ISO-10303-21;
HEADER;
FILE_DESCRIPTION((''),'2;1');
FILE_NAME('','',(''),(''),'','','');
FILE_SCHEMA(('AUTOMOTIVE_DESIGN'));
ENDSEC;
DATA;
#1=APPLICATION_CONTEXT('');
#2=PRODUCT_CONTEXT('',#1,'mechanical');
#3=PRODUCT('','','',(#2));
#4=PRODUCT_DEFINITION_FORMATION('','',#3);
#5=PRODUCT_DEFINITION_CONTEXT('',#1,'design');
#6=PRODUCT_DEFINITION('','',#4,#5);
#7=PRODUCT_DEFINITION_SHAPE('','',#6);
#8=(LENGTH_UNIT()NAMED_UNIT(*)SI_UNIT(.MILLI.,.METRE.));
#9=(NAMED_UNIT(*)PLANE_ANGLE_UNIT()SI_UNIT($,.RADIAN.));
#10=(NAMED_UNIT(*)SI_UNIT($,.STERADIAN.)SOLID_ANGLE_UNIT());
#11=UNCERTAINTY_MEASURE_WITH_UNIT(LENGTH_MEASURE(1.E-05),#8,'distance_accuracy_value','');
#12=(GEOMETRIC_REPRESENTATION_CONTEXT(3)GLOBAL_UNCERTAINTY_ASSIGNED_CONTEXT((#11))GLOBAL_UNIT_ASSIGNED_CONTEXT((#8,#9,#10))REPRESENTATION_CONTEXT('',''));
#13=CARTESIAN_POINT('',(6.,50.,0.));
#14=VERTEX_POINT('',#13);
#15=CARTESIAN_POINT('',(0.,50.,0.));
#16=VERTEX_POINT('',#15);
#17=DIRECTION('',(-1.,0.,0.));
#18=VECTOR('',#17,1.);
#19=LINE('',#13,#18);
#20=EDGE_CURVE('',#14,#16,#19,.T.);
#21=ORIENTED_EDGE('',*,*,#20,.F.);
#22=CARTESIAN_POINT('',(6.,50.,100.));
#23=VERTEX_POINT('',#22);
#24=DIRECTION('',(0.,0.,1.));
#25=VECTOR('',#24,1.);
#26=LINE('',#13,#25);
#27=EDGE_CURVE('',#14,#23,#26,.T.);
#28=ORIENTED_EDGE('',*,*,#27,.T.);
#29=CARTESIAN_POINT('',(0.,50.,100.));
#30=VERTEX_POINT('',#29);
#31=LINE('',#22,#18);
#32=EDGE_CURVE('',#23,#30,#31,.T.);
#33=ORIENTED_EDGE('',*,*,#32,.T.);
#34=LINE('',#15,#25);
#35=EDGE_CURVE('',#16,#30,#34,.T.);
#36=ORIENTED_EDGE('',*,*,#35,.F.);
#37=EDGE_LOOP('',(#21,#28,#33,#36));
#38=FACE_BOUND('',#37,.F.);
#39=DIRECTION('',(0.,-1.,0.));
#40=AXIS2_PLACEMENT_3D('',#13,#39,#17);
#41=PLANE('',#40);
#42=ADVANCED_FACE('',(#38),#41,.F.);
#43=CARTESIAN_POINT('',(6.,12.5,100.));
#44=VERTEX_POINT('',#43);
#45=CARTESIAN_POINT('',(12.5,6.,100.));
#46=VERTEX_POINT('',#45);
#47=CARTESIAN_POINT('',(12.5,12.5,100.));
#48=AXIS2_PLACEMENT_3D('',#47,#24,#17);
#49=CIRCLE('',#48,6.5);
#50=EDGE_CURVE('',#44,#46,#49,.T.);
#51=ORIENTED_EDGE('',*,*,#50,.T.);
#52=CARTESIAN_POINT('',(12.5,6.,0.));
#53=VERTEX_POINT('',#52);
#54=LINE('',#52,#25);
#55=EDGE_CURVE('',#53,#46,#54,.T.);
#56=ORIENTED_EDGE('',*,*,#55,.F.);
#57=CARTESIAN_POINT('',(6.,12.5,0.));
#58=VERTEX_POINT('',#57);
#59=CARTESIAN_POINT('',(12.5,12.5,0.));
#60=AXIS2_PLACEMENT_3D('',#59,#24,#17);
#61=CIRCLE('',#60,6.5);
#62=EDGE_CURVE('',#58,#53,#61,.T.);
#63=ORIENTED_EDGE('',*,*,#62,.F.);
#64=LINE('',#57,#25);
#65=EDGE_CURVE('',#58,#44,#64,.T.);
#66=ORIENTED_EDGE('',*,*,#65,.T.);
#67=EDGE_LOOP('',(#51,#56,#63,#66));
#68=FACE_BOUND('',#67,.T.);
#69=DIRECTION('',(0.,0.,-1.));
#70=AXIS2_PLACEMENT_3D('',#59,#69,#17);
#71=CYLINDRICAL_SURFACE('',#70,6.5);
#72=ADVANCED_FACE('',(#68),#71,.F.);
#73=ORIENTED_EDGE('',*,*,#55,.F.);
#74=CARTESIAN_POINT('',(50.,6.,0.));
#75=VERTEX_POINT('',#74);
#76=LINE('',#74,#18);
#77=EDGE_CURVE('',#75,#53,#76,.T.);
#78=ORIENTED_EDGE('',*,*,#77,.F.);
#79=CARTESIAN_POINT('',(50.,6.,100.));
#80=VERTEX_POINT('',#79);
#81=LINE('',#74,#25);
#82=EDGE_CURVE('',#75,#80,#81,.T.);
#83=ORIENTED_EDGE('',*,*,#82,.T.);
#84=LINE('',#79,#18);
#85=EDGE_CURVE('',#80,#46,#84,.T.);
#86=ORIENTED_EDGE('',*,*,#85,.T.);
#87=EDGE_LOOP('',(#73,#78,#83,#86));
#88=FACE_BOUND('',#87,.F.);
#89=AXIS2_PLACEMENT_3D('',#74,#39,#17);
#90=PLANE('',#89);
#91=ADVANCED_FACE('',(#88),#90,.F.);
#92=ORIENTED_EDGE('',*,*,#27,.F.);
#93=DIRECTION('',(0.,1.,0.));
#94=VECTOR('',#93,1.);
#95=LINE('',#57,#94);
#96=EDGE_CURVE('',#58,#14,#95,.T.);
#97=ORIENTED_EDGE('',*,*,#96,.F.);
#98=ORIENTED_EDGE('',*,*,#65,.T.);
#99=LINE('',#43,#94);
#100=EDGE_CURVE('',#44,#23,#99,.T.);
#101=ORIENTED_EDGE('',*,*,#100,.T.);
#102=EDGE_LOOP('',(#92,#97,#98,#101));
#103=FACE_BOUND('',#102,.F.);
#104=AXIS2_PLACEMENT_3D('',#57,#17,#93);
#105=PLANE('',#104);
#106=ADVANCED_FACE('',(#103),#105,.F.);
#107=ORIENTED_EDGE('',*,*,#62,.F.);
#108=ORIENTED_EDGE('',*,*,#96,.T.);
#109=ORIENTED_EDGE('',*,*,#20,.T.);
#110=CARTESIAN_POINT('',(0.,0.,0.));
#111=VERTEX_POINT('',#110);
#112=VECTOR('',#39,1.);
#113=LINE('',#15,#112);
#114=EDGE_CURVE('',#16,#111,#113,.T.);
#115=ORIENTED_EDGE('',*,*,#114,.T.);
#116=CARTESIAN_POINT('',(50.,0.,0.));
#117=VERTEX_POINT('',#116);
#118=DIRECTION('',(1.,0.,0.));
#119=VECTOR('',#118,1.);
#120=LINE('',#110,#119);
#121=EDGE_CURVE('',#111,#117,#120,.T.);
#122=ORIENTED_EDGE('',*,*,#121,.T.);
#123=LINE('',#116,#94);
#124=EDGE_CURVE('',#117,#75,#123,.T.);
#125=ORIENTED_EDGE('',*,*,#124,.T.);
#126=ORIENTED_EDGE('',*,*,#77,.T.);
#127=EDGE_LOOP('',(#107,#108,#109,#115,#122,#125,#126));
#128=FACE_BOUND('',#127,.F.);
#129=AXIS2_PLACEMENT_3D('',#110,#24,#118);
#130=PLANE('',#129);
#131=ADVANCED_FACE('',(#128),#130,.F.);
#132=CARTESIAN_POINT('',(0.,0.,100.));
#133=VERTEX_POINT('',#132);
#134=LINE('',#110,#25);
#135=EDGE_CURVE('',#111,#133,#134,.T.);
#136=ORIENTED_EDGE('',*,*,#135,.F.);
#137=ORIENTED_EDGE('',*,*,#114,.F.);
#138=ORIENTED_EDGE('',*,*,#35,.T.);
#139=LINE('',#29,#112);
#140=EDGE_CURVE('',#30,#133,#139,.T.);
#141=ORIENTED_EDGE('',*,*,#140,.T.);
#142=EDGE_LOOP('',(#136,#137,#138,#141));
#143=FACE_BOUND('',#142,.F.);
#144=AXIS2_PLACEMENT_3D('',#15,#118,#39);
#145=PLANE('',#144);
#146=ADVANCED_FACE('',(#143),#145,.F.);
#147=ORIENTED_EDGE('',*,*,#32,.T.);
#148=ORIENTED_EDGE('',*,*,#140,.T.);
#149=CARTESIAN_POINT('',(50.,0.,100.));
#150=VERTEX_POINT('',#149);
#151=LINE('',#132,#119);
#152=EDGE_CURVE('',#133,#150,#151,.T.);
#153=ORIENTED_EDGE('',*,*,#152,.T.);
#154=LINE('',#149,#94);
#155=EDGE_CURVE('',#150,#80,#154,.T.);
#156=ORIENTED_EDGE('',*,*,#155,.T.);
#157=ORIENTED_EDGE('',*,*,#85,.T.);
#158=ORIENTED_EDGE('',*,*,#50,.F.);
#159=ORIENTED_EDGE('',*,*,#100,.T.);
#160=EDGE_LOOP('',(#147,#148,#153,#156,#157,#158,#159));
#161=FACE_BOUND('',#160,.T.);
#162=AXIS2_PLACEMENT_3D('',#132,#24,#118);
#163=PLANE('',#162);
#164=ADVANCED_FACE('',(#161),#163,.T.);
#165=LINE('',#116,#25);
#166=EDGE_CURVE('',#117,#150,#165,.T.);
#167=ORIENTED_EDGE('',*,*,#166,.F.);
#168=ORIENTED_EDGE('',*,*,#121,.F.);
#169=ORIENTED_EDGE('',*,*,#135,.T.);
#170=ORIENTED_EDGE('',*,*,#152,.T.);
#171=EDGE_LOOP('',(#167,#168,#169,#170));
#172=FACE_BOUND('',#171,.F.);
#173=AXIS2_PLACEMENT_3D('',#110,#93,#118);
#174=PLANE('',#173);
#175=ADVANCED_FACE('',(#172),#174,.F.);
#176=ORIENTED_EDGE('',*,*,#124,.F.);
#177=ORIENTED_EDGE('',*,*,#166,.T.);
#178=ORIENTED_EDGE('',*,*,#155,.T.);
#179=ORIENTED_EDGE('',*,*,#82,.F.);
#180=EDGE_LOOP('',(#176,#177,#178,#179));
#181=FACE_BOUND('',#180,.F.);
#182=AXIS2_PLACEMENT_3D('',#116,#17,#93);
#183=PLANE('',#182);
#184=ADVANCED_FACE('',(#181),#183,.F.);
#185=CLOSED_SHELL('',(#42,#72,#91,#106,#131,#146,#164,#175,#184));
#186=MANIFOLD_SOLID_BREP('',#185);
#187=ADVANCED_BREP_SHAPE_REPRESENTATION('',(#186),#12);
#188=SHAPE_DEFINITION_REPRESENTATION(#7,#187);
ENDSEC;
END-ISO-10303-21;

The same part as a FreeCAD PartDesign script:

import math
import FreeCAD as App
import Part
import Sketcher

doc = App.newDocument("Part")
body = doc.addObject("PartDesign::Body", "Body")

sketch1 = doc.addObject("Sketcher::SketchObject", "Sketch")
body.addObject(sketch1)
sketch1.AttachmentSupport = (doc.XY_Plane, [""])
sketch1.MapMode = "FlatFace"
sketch1.addGeometry([
    Part.LineSegment(App.Vector(6, 50, 0), App.Vector(0, 50, 0)),
    Part.LineSegment(App.Vector(0, 50, 0), App.Vector(0, 0, 0)),
    Part.LineSegment(App.Vector(0, 0, 0), App.Vector(50, 0, 0)),
    Part.LineSegment(App.Vector(50, 0, 0), App.Vector(50, 6, 0)),
    Part.LineSegment(App.Vector(50, 6, 0), App.Vector(12, 6, 0)),
    Part.ArcOfCircle(Part.Circle(App.Vector(12, 12, 0), App.Vector(0, 0, 1), 6), math.radians(180), math.radians(270)),
    Part.LineSegment(App.Vector(6, 12, 0), App.Vector(6, 50, 0)),
], False)
sketch1.addConstraint([
    Sketcher.Constraint("Coincident", 0, 2, 1, 1),
    Sketcher.Constraint("Coincident", 1, 2, 2, 1),
    Sketcher.Constraint("Coincident", 2, 2, 3, 1),
    Sketcher.Constraint("Coincident", 3, 2, 4, 1),
    Sketcher.Constraint("Tangent", 4, 2, 5, 2),
    Sketcher.Constraint("Tangent", 5, 1, 6, 1),
    Sketcher.Constraint("Coincident", 6, 2, 0, 1),
    Sketcher.Constraint("Horizontal", 0),
    Sketcher.Constraint("Vertical", 1),
    Sketcher.Constraint("Horizontal", 2),
    Sketcher.Constraint("Vertical", 3),
    Sketcher.Constraint("Horizontal", 4),
    Sketcher.Constraint("Vertical", 6),
    Sketcher.Constraint("Coincident", 1, 2, -1, 1),
    Sketcher.Constraint("Equal", 2, 1),
    Sketcher.Constraint("Equal", 0, 3),
    Sketcher.Constraint("Radius", 5, 6.5),
    Sketcher.Constraint("DistanceX", 0, 2, 0, 1, 6.0),
    Sketcher.Constraint("DistanceX", 2, 1, 2, 2, 50.0),
])
pad1 = doc.addObject("PartDesign::Pad", "Pad")
body.addObject(pad1)
pad1.Profile = sketch1
pad1.Length = 100

doc.recompute()
